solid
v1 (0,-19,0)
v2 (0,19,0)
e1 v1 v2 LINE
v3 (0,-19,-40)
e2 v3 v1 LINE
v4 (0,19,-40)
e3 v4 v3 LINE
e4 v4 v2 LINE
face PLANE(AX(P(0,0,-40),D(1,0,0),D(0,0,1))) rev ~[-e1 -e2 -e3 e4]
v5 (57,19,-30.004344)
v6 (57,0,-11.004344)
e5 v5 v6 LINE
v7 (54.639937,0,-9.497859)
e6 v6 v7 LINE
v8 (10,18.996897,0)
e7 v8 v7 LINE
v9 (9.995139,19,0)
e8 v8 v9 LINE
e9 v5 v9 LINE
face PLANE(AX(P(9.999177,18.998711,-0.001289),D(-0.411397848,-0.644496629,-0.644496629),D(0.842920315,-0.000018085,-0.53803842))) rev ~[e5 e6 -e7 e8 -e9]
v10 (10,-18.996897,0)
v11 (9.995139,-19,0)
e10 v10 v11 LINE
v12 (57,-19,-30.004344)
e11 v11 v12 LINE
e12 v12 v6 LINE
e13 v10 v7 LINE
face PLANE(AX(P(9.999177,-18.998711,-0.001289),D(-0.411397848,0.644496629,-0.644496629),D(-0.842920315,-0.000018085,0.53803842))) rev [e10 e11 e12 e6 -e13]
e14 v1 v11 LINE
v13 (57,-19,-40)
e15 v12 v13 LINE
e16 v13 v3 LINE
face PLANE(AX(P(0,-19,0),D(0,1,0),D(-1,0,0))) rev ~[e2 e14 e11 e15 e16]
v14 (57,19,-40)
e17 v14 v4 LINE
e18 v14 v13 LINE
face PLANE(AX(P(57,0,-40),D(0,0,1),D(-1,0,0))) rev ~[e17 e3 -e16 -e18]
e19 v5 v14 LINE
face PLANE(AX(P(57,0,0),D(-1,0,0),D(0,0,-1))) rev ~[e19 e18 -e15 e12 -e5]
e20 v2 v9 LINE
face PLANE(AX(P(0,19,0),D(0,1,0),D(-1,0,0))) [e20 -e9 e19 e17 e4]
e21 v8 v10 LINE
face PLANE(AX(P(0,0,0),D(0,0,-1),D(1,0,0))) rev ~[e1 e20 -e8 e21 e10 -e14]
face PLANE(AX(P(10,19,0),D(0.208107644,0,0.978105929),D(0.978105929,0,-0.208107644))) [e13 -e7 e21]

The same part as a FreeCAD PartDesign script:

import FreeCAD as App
import Part
import Sketcher

V = App.Vector
Q = App.Units.Quantity

doc = App.newDocument("Part")
body = doc.addObject("PartDesign::Body", "Body")

# Sketch on XZ plane
sketch1 = doc.addObject("Sketcher::SketchObject", "Sketch")
body.addObject(sketch1)
sketch1.AttachmentSupport = (doc.XZ_Plane, [""])
sketch1.MapMode = "FlatFace"
sketch1.addGeometry([
    Part.LineSegment(V(0, -40, 0), V(0, 0, 0)),
    Part.LineSegment(V(0, 0, 0), V(57, 0, 0)),
    Part.LineSegment(V(57, 0, 0), V(57, -40, 0)),
    Part.LineSegment(V(57, -40, 0), V(0, -40, 0)),
], False)
sketch1.addConstraint([
    Sketcher.Constraint("Coincident", 0, 2, 1, 1),
    Sketcher.Constraint("Coincident", 1, 2, 2, 1),
    Sketcher.Constraint("Coincident", 2, 2, 3, 1),
    Sketcher.Constraint("Coincident", 3, 2, 0, 1),
    Sketcher.Constraint("Vertical", 0),
    Sketcher.Constraint("Horizontal", 1),
    Sketcher.Constraint("Vertical", 2),
    Sketcher.Constraint("Horizontal", 3),
    Sketcher.Constraint("Coincident", 0, 2, -1, 1),
    Sketcher.Constraint("DistanceX", 1, 1, 1, 2, Q("57 mm")),
    Sketcher.Constraint("DistanceY", 0, 1, 0, 2, Q("40 mm")),
])
pad1 = doc.addObject("PartDesign::Pad", "Pad")
body.addObject(pad1)
pad1.Profile = sketch1
pad1.Length = 38
pad1.Midplane = True

# Sketch on XZ plane
sketch2 = doc.addObject("Sketcher::SketchObject", "Sketch001")
body.addObject(sketch2)
sketch2.AttachmentSupport = (doc.XZ_Plane, [""])
sketch2.MapMode = "FlatFace"
sketch2.AttachmentOffset = App.Placement(V(0, 0, -19), App.Rotation())
sketch2.addGeometry([
    Part.LineSegment(V(57, -10, 0), V(10, 0, 0)),
    Part.LineSegment(V(10, 0, 0), V(57, 0, 0)),
    Part.LineSegment(V(57, 0, 0), V(57, -10, 0)),
], False)
sketch2.addConstraint([
    Sketcher.Constraint("Coincident", 0, 2, 1, 1),
    Sketcher.Constraint("Coincident", 1, 2, 2, 1),
    Sketcher.Constraint("Coincident", 2, 2, 0, 1),
    Sketcher.Constraint("Horizontal", 1),
    Sketcher.Constraint("Vertical", 2),
    Sketcher.Constraint("PointOnObject", 0, 2, -1),
    Sketcher.Constraint("DistanceY", 2, 2, 2, 1, Q("10 mm")),
    Sketcher.Constraint("DistanceX", -1, 1, 0, 2, Q("10 mm")),
    Sketcher.Constraint("DistanceX", 1, 1, 1, 2, Q("47 mm")),
])
pocket1 = doc.addObject("PartDesign::Pocket", "Pocket")
body.addObject(pocket1)
pocket1.Profile = sketch2
pocket1.Length = 40
pocket1.Reversed = True

# Sketch on an angled plane
sketch3 = doc.addObject("Sketcher::SketchObject", "Sketch002")
body.addObject(sketch3)
sketch3.Placement = App.Placement(V(10, 19, 0), App.Rotation(V(0.842920315, -0.000018085, -0.53803842), V(0.346752292, -0.76460715, 0.543266742), V(-0.411397848, -0.644496629, -0.644496629), "ZXY"))
sketch3.addGeometry([
    Part.LineSegment(V(-15, 29, 0), V(-15, -12, 0)),
    Part.LineSegment(V(-15, -12, 0), V(94, -12, 0)),
    Part.LineSegment(V(94, -12, 0), V(94, 29, 0)),
    Part.LineSegment(V(94, 29, 0), V(-15, 29, 0)),
], False)
sketch3.addConstraint([
    Sketcher.Constraint("Coincident", 0, 2, 1, 1),
    Sketcher.Constraint("Coincident", 1, 2, 2, 1),
    Sketcher.Constraint("Coincident", 2, 2, 3, 1),
    Sketcher.Constraint("Coincident", 3, 2, 0, 1),
    Sketcher.Constraint("Vertical", 0),
    Sketcher.Constraint("Horizontal", 1),
    Sketcher.Constraint("Vertical", 2),
    Sketcher.Constraint("Horizontal", 3),
    Sketcher.Constraint("DistanceX", 1, 1, 1, 2, Q("108.8713 mm")),
    Sketcher.Constraint("DistanceY", 0, 2, 0, 1, Q("41.1384 mm")),
    Sketcher.Constraint("DistanceX", -1, 1, 1, 2, Q("93.717 mm")),
    Sketcher.Constraint("DistanceY", 0, 2, -1, 1, Q("12.3218 mm")),
])
pocket2 = doc.addObject("PartDesign::Pocket", "Pocket001")
body.addObject(pocket2)
pocket2.Profile = sketch3
pocket2.Length = 40
doc.recompute()

mirrored = doc.addObject("PartDesign::Mirrored", "Mirrored")
body.addObject(mirrored)
mirrored.Originals = [pocket2]
mirrored.MirrorPlane = (doc.XZ_Plane, [""])
body.Tip = mirrored

doc.recompute()
